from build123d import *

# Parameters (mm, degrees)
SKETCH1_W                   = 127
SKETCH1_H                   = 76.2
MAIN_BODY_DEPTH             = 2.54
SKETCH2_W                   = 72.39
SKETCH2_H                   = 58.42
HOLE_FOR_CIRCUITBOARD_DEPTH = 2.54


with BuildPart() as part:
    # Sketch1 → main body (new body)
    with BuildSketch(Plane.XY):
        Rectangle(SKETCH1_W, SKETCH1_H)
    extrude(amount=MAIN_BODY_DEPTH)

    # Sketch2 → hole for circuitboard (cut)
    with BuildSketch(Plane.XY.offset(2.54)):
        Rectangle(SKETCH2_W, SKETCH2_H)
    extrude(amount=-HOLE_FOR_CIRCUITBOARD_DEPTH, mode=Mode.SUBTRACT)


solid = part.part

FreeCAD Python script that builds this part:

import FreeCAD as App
import Part
import Sketcher

V = App.Vector
Q = App.Units.Quantity


def add_polygon(sketch, points):
    """Adds a closed chain of lines whose ends are joined by coincident constraints."""
    first, n = sketch.GeometryCount, len(points)
    for a, b in zip(points, points[1:] + points[:1]):
        sketch.addGeometry(Part.LineSegment(App.Vector(*a, 0), App.Vector(*b, 0)), False)
    for i in range(n):
        sketch.addConstraint(Sketcher.Constraint("Coincident", first + i, 2, first + (i + 1) % n, 1))

doc = App.newDocument("Part")
params = doc.addObject("Spreadsheet::Sheet", "Params")
for row, (alias, value) in enumerate([
    ("sketch1_width", "5 in"),
    ("sketch1_height", "3 in"),
    ("pad1_length", "0.1 in"),
    ("sketch2_height", "2.3 in"),
    ("sketch2_width", "2.85 in"),
    ("pocket1_length", "0.1 in"),
], start=1):
    params.set(f"A{row}", alias)
    params.set(f"B{row}", "=" + value)
    params.setAlias(f"B{row}", alias)

body = doc.addObject("PartDesign::Body", "Body")

# Sketch on XY plane
sketch1 = doc.addObject("Sketcher::SketchObject", "Sketch")
body.addObject(sketch1)
sketch1.AttachmentSupport = (doc.XY_Plane, [""])
sketch1.MapMode = "FlatFace"
add_polygon(sketch1, [(-64, 38), (-64, -38), (64, -38), (64, 38)])  # lines 0-3
sketch1.addConstraint(Sketcher.Constraint("Vertical", 0))
sketch1.addConstraint(Sketcher.Constraint("Horizontal", 1))
sketch1.addConstraint(Sketcher.Constraint("Vertical", 2))
sketch1.addConstraint(Sketcher.Constraint("Horizontal", 3))
sketch1.addConstraint(Sketcher.Constraint("Symmetric", 0, 2, 2, 2, -1, 1))
sketch1.addConstraint(Sketcher.Constraint("DistanceX", 1, 1, 1, 2, Q("5 in")))
sketch1.addConstraint(Sketcher.Constraint("DistanceY", 0, 2, 0, 1, Q("3 in")))
sketch1.setExpression("Constraints[9]", "Params.sketch1_width")
sketch1.setExpression("Constraints[10]", "Params.sketch1_height")
pad1 = doc.addObject("PartDesign::Pad", "Pad")
body.addObject(pad1)
pad1.Profile = sketch1
pad1.setExpression("Length", "Params.pad1_length")

# Sketch on XY plane
sketch2 = doc.addObject("Sketcher::SketchObject", "Sketch001")
body.addObject(sketch2)
sketch2.AttachmentSupport = (doc.XY_Plane, [""])
sketch2.MapMode = "FlatFace"
sketch2.AttachmentOffset = App.Placement(V(0, 0, 0.1 * 25.4), App.Rotation())
add_polygon(sketch2, [(-36, 29), (-36, -29), (36, -29), (36, 29)])  # lines 0-3
sketch2.addConstraint(Sketcher.Constraint("Vertical", 0))
sketch2.addConstraint(Sketcher.Constraint("Horizontal", 1))
sketch2.addConstraint(Sketcher.Constraint("Vertical", 2))
sketch2.addConstraint(Sketcher.Constraint("Horizontal", 3))
sketch2.addConstraint(Sketcher.Constraint("Symmetric", 0, 2, 2, 2, -1, 1))
sketch2.addConstraint(Sketcher.Constraint("DistanceY", 0, 2, 0, 1, Q("2.3 in")))
sketch2.addConstraint(Sketcher.Constraint("DistanceX", 1, 1, 1, 2, Q("2.85 in")))
sketch2.setExpression("Constraints[9]", "Params.sketch2_height")
sketch2.setExpression("Constraints[10]", "Params.sketch2_width")
pocket1 = doc.addObject("PartDesign::Pocket", "Pocket")
body.addObject(pocket1)
pocket1.Profile = sketch2
pocket1.setExpression("Length", "Params.pocket1_length")

doc.recompute()
